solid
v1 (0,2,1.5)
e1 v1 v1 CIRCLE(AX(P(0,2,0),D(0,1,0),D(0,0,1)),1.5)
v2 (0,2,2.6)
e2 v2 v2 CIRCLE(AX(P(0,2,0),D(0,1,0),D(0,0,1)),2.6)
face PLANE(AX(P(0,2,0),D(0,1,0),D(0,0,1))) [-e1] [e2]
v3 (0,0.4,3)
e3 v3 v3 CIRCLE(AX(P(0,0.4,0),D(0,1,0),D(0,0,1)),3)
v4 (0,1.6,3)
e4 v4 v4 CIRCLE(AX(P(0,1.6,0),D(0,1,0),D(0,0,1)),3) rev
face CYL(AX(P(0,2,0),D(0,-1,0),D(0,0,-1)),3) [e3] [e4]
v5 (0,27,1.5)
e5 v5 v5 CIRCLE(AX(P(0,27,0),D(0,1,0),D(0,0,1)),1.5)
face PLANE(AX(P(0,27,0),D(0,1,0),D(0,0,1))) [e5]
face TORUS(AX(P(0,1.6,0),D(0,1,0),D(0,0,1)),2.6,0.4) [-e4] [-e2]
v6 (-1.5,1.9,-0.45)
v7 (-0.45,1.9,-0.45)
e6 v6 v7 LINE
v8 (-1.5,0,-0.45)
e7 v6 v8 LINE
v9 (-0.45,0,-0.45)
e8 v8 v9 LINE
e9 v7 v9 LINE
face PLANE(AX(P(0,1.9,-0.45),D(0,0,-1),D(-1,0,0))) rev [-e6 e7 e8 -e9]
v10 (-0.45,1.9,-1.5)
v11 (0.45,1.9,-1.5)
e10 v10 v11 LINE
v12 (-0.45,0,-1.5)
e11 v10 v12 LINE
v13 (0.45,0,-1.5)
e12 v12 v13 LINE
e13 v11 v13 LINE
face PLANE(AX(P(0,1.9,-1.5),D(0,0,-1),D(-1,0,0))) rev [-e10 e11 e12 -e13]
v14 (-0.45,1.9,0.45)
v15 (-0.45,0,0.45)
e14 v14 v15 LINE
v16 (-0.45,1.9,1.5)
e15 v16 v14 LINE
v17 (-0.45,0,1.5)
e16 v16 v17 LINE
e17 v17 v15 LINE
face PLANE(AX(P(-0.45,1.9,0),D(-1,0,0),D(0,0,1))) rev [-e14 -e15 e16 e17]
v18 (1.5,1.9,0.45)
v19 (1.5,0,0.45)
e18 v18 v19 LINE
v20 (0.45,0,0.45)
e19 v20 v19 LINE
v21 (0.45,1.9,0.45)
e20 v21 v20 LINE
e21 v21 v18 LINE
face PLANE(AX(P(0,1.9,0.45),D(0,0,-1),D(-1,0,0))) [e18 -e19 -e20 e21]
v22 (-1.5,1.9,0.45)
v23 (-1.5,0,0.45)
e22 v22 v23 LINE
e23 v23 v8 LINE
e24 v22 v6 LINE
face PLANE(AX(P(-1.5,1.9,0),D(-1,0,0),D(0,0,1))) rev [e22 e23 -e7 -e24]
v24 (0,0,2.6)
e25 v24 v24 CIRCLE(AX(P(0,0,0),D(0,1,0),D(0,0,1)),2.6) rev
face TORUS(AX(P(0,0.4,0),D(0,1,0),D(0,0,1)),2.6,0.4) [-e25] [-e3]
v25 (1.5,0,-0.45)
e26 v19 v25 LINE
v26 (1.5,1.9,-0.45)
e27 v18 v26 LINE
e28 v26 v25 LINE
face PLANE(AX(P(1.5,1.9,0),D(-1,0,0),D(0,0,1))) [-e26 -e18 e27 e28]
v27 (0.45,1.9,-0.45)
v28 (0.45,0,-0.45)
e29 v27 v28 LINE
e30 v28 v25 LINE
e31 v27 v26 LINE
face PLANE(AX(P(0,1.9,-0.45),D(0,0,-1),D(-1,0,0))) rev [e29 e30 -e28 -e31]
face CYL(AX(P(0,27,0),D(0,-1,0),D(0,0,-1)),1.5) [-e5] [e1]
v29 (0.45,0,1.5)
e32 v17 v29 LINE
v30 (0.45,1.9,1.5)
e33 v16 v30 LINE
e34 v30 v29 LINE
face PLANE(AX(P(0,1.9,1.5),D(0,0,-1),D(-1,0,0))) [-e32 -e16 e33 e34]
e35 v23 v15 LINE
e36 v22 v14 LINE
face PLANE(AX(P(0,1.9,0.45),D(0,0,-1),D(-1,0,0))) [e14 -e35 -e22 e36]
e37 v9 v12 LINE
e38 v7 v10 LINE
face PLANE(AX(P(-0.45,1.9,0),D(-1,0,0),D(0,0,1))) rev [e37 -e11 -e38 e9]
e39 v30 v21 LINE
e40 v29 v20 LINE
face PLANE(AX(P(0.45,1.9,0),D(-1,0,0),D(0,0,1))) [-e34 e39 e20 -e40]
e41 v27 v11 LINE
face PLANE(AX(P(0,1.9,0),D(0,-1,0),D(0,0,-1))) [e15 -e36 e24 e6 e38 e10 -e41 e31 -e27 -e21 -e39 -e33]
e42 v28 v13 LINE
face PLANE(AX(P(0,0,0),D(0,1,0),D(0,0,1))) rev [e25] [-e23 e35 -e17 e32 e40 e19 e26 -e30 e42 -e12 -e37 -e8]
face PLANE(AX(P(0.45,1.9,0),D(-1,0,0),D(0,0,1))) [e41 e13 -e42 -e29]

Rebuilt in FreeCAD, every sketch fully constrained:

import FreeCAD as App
import Part
import Sketcher


def edges_at(feature, points):
    """Names of the edges that pass closest to the given points."""
    edges = feature.Shape.Edges
    near = lambda p: min(range(len(edges)), key=lambda i: edges[i].distToShape(Part.Vertex(*p))[0])
    return sorted({f"Edge{near(p) + 1}" for p in points})

doc = App.newDocument("Part")
body = doc.addObject("PartDesign::Body", "Body")

# Sketch on XZ plane
sketch1 = body.newObject("Sketcher::SketchObject", "Sketch")
sketch1.AttachmentSupport = (doc.getObject("XZ_Plane"), [""])
sketch1.MapMode = "FlatFace"
sketch1.addGeometry(Part.Circle(App.Vector(0, 0, 0), App.Vector(0, 0, 1), 3), False)
sketch1.addConstraint([
    Sketcher.Constraint("Coincident", 0, 3, -1, 1),
    Sketcher.Constraint("Diameter", 0, 6.0),
])
pad1 = body.newObject("PartDesign::Pad", "Pad")
pad1.Profile = sketch1
pad1.Length = 2
pad1.Reversed = True

# Sketch on XZ plane
sketch2 = body.newObject("Sketcher::SketchObject", "Sketch001")
sketch2.AttachmentSupport = (doc.getObject("XZ_Plane"), [""])
sketch2.MapMode = "FlatFace"
sketch2.AttachmentOffset = App.Placement(App.Vector(0, 0, -2), App.Rotation())
sketch2.addGeometry(Part.Circle(App.Vector(0, 0, 0), App.Vector(0, 0, 1), 1.5), False)
sketch2.addConstraint([
    Sketcher.Constraint("Coincident", 0, 3, -1, 1),
    Sketcher.Constraint("Diameter", 0, 3.0),
])
pad2 = body.newObject("PartDesign::Pad", "Pad001")
pad2.Profile = sketch2
pad2.Length = 25
pad2.Reversed = True

# Sketch on XZ plane
sketch3 = body.newObject("Sketcher::SketchObject", "Sketch002")
sketch3.AttachmentSupport = (doc.getObject("XZ_Plane"), [""])
sketch3.MapMode = "FlatFace"
sketch3.addGeometry([
    Part.LineSegment(App.Vector(0.45, 0.45, 0), App.Vector(0.45, 1.5, 0)),  # 0
    Part.LineSegment(App.Vector(0.45, 1.5, 0), App.Vector(-0.45, 1.5, 0)),  # 1
    Part.LineSegment(App.Vector(-0.45, 1.5, 0), App.Vector(-0.45, 0.45, 0)),  # 2
    Part.LineSegment(App.Vector(-0.45, 0.45, 0), App.Vector(-1.5, 0.45, 0)),  # 3
    Part.LineSegment(App.Vector(-1.5, 0.45, 0), App.Vector(-1.5, -0.45, 0)),  # 4
    Part.LineSegment(App.Vector(-1.5, -0.45, 0), App.Vector(-0.45, -0.45, 0)),  # 5
    Part.LineSegment(App.Vector(-0.45, -0.45, 0), App.Vector(-0.45, -1.5, 0)),  # 6
    Part.LineSegment(App.Vector(-0.45, -1.5, 0), App.Vector(0.45, -1.5, 0)),  # 7
    Part.LineSegment(App.Vector(0.45, -1.5, 0), App.Vector(0.45, -0.45, 0)),  # 8
    Part.LineSegment(App.Vector(0.45, -0.45, 0), App.Vector(1.5, -0.45, 0)),  # 9
    Part.LineSegment(App.Vector(1.5, -0.45, 0), App.Vector(1.5, 0.45, 0)),  # 10
    Part.LineSegment(App.Vector(1.5, 0.45, 0), App.Vector(0.45, 0.45, 0)),  # 11
], False)
sketch3.addConstraint([
    Sketcher.Constraint("Coincident", 0, 2, 1, 1),
    Sketcher.Constraint("Coincident", 1, 2, 2, 1),
    Sketcher.Constraint("Coincident", 2, 2, 3, 1),
    Sketcher.Constraint("Coincident", 3, 2, 4, 1),
    Sketcher.Constraint("Coincident", 4, 2, 5, 1),
    Sketcher.Constraint("Coincident", 5, 2, 6, 1),
    Sketcher.Constraint("Coincident", 6, 2, 7, 1),
    Sketcher.Constraint("Coincident", 7, 2, 8, 1),
    Sketcher.Constraint("Coincident", 8, 2, 9, 1),
    Sketcher.Constraint("Coincident", 9, 2, 10, 1),
    Sketcher.Constraint("Coincident", 10, 2, 11, 1),
    Sketcher.Constraint("Coincident", 11, 2, 0, 1),
    Sketcher.Constraint("Vertical", 0),
    Sketcher.Constraint("Horizontal", 1),
    Sketcher.Constraint("Vertical", 2),
    Sketcher.Constraint("Horizontal", 3),
    Sketcher.Constraint("Vertical", 4),
    Sketcher.Constraint("Horizontal", 5),
    Sketcher.Constraint("Vertical", 6),
    Sketcher.Constraint("Horizontal", 7),
    Sketcher.Constraint("Vertical", 8),
    Sketcher.Constraint("Horizontal", 9),
    Sketcher.Constraint("Vertical", 10),
    Sketcher.Constraint("Horizontal", 11),
    Sketcher.Constraint("Symmetric", 0, 2, 6, 2, -1, 1),
    Sketcher.Constraint("Symmetric", 2, 2, 8, 2, -1, 1),
    Sketcher.Constraint("Symmetric", 4, 2, 10, 2, -1, 1),
    Sketcher.Constraint("Symmetric", 5, 2, 8, 2, -2),
    Sketcher.Constraint("Equal", 11, 0),
    Sketcher.Constraint("Equal", 7, 4),
    Sketcher.Constraint("DistanceX", 1, 2, 1, 1, 0.9),
    Sketcher.Constraint("DistanceY", 6, 2, 1, 2, 3.0),
])
pocket1 = body.newObject("PartDesign::Pocket", "Pocket")
pocket1.Profile = sketch3
pocket1.Length = 1.9
doc.recompute()

fillet = body.newObject("PartDesign::Fillet", "Fillet")
fillet.Base = (pocket1, edges_at(pocket1, [(-3, 0, 0), (-3, 2, 0)]))
fillet.Radius = 0.4

doc.recompute()
